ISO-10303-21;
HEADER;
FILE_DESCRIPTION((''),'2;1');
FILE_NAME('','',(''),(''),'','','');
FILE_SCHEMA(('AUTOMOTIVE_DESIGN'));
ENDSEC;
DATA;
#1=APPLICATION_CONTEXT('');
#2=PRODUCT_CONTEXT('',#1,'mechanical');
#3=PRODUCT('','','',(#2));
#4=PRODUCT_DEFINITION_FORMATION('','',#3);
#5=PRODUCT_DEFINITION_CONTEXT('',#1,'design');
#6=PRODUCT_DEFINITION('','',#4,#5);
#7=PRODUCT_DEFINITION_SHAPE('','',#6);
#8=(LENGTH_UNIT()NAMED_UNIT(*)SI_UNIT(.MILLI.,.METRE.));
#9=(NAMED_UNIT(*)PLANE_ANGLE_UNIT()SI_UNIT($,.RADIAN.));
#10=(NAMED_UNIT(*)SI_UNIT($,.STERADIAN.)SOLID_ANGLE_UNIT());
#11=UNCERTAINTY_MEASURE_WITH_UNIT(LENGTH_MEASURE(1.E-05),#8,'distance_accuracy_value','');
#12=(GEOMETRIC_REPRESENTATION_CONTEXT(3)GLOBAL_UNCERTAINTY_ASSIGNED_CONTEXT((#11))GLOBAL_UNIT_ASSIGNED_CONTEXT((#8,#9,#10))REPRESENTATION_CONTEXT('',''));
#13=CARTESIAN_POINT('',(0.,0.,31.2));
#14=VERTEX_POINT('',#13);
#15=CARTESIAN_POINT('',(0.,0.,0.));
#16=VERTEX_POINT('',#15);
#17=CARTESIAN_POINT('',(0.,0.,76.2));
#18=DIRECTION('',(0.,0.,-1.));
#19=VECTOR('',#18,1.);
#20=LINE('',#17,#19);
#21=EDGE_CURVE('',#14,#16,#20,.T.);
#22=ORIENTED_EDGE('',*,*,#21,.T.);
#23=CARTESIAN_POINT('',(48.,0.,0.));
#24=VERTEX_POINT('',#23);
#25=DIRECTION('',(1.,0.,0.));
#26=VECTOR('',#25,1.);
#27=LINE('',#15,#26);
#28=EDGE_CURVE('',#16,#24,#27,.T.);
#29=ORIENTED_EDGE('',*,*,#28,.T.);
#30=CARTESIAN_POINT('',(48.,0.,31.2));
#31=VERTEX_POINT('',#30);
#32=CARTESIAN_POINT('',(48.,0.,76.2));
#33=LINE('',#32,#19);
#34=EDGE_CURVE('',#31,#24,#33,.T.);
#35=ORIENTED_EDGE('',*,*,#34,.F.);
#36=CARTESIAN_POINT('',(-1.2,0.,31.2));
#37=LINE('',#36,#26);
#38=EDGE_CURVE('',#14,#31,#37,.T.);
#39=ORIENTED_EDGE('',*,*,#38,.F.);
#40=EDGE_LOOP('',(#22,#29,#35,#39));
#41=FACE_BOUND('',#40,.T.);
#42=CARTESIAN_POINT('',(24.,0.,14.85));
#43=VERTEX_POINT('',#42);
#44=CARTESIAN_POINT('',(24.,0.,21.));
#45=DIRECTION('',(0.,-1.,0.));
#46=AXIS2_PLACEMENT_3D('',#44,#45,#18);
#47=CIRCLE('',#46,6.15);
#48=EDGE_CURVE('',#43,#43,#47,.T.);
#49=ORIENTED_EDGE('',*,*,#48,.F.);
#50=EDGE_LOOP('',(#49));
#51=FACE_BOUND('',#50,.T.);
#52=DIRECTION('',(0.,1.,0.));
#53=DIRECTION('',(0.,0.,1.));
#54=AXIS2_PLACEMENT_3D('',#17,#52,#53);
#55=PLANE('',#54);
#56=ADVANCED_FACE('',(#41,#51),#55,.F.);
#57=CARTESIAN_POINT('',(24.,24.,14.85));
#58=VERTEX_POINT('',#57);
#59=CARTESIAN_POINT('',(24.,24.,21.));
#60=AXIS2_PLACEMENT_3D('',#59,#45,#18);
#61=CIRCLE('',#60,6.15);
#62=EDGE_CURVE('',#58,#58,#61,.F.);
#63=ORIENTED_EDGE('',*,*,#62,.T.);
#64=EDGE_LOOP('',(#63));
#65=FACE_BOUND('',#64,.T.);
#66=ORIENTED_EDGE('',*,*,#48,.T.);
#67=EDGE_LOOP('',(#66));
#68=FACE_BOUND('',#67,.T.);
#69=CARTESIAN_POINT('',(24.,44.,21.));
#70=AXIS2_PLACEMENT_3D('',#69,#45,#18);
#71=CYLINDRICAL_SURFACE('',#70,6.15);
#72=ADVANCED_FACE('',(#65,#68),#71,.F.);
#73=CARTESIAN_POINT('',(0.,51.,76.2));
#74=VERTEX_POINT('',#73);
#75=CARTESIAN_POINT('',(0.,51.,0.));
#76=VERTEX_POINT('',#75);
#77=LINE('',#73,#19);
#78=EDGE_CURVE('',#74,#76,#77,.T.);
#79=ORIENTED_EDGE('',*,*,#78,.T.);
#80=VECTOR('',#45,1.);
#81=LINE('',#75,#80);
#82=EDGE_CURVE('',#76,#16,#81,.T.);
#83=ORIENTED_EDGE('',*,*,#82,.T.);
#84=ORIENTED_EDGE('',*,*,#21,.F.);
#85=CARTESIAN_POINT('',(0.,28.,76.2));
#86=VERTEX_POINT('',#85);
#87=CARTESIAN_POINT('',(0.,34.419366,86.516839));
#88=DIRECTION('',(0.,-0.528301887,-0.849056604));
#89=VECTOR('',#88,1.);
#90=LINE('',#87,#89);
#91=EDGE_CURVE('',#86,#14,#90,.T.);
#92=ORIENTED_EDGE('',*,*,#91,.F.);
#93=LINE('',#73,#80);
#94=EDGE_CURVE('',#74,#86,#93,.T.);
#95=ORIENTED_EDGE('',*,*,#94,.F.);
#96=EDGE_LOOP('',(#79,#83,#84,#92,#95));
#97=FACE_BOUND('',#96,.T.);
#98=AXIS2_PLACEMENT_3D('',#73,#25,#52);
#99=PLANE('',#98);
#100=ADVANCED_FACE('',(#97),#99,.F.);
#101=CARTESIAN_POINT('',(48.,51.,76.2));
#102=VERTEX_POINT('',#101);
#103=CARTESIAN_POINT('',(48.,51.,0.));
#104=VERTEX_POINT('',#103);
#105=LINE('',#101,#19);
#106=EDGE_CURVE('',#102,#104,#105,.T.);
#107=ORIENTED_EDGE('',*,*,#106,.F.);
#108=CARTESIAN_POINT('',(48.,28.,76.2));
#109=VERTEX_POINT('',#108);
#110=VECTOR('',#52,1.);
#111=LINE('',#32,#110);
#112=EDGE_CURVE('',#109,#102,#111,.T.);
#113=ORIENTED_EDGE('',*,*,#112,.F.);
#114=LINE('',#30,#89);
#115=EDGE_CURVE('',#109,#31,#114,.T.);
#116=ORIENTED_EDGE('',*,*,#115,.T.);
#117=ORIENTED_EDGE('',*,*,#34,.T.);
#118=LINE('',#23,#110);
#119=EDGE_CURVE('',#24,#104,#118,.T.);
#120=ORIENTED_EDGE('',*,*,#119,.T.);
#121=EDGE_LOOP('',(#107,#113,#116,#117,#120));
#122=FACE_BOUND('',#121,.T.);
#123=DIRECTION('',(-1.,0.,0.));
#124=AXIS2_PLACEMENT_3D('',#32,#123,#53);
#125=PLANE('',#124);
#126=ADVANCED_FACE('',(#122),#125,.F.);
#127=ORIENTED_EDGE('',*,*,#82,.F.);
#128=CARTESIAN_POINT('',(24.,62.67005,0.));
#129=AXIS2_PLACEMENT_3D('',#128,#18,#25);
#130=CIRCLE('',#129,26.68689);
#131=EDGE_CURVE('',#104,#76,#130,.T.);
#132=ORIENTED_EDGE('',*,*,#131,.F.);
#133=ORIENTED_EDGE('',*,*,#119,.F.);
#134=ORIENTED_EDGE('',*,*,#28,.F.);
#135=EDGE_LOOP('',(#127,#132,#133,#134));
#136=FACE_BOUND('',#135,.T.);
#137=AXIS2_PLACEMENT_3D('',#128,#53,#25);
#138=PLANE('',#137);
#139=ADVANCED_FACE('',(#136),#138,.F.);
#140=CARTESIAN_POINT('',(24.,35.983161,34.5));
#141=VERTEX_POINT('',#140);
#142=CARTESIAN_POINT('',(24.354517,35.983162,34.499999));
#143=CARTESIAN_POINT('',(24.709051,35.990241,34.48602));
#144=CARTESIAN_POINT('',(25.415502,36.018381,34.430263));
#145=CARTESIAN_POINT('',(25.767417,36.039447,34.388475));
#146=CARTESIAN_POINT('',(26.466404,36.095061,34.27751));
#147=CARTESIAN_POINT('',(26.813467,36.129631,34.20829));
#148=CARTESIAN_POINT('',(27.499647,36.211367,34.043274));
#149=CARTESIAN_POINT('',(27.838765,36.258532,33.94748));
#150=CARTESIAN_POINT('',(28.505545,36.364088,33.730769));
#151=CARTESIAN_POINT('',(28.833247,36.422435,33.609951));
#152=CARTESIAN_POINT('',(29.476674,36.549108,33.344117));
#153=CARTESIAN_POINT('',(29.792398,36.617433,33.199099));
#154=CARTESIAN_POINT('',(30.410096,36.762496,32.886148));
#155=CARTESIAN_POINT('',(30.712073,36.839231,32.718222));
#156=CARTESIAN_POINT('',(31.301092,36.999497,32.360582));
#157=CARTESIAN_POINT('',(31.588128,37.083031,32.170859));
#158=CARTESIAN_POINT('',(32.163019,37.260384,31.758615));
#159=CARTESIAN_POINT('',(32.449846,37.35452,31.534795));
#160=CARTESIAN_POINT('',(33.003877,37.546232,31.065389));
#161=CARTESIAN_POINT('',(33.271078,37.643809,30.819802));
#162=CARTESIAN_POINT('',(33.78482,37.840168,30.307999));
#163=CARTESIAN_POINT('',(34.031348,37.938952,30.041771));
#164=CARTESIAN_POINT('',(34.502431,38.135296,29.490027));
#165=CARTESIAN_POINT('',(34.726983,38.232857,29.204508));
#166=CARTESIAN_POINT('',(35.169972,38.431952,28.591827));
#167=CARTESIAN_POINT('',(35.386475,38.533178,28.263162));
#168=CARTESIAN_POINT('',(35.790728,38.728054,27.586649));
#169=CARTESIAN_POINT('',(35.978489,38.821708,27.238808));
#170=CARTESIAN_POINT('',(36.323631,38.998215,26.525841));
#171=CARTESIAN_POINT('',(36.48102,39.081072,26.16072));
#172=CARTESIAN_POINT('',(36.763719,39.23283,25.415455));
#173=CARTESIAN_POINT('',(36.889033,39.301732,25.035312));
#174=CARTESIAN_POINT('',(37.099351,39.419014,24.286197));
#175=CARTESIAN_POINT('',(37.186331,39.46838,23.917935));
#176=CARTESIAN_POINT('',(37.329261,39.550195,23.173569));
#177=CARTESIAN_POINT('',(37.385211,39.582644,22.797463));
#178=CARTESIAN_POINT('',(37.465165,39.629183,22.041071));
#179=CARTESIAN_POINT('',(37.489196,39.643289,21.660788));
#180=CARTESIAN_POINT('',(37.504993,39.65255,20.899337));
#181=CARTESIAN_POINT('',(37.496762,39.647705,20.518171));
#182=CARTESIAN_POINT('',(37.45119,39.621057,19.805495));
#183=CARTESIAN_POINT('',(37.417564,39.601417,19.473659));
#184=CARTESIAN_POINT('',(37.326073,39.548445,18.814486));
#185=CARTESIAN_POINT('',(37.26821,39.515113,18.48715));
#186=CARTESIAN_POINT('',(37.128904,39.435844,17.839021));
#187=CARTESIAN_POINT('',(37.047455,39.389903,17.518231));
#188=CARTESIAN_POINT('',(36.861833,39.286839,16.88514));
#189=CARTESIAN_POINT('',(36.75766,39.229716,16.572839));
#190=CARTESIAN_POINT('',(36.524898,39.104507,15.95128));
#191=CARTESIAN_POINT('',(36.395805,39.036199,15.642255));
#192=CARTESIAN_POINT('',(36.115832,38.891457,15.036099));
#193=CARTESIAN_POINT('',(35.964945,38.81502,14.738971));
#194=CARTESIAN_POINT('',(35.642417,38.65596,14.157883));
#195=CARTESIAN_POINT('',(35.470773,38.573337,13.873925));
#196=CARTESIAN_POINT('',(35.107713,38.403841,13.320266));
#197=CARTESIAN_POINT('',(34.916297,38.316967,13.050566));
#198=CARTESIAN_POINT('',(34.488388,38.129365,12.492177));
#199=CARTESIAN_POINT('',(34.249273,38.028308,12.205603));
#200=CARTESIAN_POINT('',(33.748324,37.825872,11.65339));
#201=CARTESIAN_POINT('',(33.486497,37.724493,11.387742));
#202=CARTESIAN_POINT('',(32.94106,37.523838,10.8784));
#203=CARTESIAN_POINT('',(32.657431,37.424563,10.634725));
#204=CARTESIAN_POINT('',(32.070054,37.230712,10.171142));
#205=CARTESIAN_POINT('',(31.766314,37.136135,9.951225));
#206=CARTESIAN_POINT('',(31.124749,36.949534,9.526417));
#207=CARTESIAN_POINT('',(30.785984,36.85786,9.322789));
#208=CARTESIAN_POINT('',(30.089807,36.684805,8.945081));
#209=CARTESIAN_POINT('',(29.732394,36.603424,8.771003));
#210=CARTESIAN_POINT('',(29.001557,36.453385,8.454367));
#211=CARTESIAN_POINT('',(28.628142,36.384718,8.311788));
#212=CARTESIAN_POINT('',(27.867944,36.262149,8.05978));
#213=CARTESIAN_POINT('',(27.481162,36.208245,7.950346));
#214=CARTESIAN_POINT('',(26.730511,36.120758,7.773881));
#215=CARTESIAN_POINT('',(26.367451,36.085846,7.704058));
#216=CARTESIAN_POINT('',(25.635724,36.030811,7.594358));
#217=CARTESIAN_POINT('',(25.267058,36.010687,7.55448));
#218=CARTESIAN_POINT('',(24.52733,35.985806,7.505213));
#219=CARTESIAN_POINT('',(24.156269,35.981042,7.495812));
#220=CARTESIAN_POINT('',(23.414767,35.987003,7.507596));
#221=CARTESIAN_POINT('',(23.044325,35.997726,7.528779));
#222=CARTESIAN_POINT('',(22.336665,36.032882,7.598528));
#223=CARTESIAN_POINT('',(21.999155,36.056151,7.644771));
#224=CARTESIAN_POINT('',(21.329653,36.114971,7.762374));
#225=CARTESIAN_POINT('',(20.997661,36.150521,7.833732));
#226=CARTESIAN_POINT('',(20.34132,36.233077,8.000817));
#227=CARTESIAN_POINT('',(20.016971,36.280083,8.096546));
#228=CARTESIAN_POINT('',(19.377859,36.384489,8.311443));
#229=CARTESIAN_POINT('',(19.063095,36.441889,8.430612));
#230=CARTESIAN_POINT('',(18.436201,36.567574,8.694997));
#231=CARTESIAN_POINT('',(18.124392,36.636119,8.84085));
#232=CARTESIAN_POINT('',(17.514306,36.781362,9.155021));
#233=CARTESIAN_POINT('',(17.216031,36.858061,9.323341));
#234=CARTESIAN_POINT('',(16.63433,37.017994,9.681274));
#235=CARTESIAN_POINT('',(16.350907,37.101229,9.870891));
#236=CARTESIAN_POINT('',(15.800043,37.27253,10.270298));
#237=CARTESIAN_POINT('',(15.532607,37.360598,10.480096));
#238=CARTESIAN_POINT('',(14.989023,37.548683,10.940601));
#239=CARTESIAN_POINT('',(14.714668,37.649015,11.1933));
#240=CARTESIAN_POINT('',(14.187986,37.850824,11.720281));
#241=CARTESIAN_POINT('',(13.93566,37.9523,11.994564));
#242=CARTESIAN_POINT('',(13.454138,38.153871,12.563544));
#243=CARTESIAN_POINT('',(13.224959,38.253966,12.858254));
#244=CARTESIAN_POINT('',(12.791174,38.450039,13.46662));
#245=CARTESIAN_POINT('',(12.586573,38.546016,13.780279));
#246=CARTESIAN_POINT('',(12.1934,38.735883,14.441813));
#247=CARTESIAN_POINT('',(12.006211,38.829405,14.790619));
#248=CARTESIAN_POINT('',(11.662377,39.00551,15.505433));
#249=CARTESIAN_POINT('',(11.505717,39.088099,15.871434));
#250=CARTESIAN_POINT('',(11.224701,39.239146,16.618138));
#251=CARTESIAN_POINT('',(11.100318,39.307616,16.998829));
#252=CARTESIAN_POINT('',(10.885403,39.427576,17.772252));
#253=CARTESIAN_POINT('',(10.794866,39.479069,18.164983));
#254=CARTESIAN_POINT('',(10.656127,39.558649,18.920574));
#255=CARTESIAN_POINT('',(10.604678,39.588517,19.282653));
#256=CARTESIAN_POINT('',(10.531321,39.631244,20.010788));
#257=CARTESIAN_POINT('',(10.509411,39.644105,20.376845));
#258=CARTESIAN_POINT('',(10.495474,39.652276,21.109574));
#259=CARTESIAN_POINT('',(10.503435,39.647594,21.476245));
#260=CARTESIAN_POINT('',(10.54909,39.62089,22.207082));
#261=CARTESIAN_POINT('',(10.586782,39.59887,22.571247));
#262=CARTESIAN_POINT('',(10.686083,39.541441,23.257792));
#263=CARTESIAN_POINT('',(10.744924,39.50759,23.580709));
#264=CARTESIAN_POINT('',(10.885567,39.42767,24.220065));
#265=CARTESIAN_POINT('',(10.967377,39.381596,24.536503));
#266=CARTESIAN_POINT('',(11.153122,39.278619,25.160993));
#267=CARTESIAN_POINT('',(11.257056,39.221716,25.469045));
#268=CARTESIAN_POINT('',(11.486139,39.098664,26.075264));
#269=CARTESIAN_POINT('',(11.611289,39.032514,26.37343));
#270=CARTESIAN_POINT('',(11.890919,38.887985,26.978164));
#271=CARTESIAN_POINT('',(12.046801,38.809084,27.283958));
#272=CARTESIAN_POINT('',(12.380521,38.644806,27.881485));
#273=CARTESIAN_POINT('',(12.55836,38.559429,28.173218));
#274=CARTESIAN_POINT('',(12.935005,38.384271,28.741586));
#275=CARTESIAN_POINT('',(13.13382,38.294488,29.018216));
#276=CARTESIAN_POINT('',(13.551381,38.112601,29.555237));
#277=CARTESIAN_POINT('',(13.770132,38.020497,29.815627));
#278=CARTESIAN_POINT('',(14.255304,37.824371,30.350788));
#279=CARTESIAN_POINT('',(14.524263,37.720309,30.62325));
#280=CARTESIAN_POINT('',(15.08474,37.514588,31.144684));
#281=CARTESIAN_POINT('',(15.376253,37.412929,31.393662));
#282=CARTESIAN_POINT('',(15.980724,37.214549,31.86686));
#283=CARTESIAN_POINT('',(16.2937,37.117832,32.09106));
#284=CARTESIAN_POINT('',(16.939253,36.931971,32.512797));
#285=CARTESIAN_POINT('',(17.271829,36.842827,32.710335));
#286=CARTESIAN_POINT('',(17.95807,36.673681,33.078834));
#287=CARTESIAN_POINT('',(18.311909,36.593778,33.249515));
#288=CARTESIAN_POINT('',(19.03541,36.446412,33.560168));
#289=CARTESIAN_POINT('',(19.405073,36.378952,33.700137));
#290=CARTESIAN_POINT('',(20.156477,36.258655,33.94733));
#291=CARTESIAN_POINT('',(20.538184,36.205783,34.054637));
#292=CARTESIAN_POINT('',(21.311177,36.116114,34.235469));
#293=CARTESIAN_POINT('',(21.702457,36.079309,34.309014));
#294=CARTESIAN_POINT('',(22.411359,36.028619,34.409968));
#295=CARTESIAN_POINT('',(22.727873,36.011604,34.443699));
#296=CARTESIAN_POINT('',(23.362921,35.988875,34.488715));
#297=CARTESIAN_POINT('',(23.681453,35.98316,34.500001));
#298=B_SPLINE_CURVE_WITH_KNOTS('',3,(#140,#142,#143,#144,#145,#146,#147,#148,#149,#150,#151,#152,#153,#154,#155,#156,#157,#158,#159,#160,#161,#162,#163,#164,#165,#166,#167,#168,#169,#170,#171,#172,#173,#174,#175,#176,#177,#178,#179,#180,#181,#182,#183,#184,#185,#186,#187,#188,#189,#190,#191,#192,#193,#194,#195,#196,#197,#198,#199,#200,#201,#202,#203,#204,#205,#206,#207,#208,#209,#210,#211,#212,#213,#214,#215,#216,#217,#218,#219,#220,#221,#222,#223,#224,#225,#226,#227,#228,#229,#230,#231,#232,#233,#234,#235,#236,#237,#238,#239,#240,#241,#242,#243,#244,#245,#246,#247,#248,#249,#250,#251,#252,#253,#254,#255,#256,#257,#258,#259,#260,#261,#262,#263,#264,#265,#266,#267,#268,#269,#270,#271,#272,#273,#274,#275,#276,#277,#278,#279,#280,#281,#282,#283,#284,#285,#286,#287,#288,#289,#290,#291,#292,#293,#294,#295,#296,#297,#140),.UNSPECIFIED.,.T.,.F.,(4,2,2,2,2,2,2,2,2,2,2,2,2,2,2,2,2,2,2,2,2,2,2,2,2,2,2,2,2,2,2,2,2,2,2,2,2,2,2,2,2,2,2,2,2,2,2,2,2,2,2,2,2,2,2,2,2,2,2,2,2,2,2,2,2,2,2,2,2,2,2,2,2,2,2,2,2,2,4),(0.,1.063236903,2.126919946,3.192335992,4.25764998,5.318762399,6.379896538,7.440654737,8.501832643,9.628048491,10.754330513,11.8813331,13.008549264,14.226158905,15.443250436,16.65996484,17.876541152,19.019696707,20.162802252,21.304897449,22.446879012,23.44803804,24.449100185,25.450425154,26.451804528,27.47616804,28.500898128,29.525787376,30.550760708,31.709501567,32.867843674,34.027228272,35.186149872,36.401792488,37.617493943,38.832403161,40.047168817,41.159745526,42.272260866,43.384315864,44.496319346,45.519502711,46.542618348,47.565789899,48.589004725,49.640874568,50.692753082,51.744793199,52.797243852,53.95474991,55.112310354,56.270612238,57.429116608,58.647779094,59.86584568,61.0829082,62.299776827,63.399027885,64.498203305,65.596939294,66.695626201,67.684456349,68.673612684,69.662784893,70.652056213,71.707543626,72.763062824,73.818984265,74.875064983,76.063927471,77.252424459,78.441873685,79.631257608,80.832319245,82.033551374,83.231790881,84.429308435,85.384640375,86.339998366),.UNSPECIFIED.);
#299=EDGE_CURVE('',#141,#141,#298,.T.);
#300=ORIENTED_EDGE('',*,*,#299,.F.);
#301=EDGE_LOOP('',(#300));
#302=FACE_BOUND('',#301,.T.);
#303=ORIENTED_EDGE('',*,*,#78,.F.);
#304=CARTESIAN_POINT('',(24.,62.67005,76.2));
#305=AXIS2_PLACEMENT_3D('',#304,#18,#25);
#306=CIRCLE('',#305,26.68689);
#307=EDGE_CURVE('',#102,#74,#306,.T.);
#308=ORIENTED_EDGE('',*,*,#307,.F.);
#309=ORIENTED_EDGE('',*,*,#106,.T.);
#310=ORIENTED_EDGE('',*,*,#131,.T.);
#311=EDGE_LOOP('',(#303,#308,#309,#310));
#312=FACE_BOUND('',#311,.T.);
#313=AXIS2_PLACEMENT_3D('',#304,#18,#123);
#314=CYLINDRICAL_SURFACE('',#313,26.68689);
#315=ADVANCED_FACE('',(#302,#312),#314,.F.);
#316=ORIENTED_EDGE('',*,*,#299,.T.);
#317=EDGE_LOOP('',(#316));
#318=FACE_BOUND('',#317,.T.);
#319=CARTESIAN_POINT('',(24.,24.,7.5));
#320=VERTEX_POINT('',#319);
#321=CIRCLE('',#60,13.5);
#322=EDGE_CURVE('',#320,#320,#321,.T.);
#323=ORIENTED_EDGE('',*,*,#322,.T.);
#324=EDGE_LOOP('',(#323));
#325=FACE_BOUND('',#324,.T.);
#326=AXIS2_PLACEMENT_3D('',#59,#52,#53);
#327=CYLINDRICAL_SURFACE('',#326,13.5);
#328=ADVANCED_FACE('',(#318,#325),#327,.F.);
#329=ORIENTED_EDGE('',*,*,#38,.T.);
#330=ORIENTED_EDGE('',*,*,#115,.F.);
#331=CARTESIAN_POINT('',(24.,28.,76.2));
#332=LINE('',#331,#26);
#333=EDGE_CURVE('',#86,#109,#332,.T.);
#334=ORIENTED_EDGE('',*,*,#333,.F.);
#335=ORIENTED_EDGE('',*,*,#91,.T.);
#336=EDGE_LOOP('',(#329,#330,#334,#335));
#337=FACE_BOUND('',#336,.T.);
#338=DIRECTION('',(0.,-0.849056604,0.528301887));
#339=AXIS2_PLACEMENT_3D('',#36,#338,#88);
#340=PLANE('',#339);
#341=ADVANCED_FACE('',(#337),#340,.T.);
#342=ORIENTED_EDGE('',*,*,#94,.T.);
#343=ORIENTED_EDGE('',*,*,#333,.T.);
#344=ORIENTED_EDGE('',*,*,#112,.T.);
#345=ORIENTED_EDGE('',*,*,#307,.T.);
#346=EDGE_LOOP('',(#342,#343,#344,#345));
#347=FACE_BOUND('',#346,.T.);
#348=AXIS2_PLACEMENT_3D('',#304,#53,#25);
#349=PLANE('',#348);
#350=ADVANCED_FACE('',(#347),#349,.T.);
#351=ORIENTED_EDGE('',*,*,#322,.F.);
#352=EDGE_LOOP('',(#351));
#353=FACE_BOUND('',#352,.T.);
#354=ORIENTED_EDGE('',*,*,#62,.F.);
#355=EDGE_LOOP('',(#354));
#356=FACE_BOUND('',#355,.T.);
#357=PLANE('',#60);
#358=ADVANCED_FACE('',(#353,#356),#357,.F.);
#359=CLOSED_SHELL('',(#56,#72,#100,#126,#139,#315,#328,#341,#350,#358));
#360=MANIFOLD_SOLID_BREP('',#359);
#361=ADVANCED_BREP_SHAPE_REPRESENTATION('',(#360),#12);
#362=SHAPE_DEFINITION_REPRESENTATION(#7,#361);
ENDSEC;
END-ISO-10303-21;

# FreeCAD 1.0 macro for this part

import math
import FreeCAD as App
import Part
import Sketcher
from FreeCAD import Vector
Q = App.Units.Quantity


def add_polygon(sketch, points):
    """Adds a closed chain of lines whose ends are joined by coincident constraints."""
    first, n = sketch.GeometryCount, len(points)
    for a, b in zip(points, points[1:] + points[:1]):
        sketch.addGeometry(Part.LineSegment(App.Vector(*a, 0), App.Vector(*b, 0)), False)
    for i in range(n):
        sketch.addConstraint(Sketcher.Constraint("Coincident", first + i, 2, first + (i + 1) % n, 1))

doc = App.newDocument("Part")
params = doc.addObject("Spreadsheet::Sheet", "Params")
for row, (alias, value) in enumerate([
    ("sketch1_width", "48 mm"),
    ("sketch1_height", "51 mm"),
    ("pad1_length", "76.2 mm"),
    ("sketch2_width", "28 mm"),
    ("sketch2_height", "45 mm"),
    ("pocket1_length", "49.2 mm"),
    ("sketch3_diameter", "12.3 mm"),
    ("pocket2_length", "44 mm"),
    ("sketch4_diameter", "27 mm"),
    ("pocket3_length", "27 mm"),
], start=1):
    params.set(f"A{row}", alias)
    params.set(f"B{row}", "=" + value)
    params.setAlias(f"B{row}", alias)

body = doc.addObject("PartDesign::Body", "Body")

sketch1 = body.newObject("Sketcher::SketchObject", "Sketch")
sketch1.AttachmentSupport = (doc.getObject("XY_Plane"), [""])
sketch1.MapMode = "FlatFace"
sketch1.addGeometry([
    Part.LineSegment(Vector(0, 51, 0), Vector(0, 0, 0)),
    Part.LineSegment(Vector(0, 0, 0), Vector(48, 0, 0)),
    Part.LineSegment(Vector(48, 0, 0), Vector(48, 51, 0)),
    Part.ArcOfCircle(Part.Circle(Vector(24, 63, 0), Vector(0, 0, 1), 27), math.radians(-154), math.radians(-26)),
], False)
sketch1.addConstraint([
    Sketcher.Constraint("Coincident", 0, 2, 1, 1),
    Sketcher.Constraint("Coincident", 1, 2, 2, 1),
    Sketcher.Constraint("Coincident", 2, 2, 3, 2),
    Sketcher.Constraint("Coincident", 3, 1, 0, 1),
    Sketcher.Constraint("Vertical", 0),
    Sketcher.Constraint("Horizontal", 1),
    Sketcher.Constraint("Vertical", 2),
    Sketcher.Constraint("Coincident", 0, 2, -1, 1),
    Sketcher.Constraint("Horizontal", 2, 2, 3, 1),
    Sketcher.Constraint("DistanceX", 1, 1, 1, 2, Q("48 mm")),
    Sketcher.Constraint("DistanceY", 0, 2, 0, 1, Q("51 mm")),
    Sketcher.Constraint("Radius", 3, Q("26.68689 mm")),
])
sketch1.setExpression("Constraints[9]", "Params.sketch1_width")
sketch1.setExpression("Constraints[10]", "Params.sketch1_height")
pad1 = body.newObject("PartDesign::Pad", "Pad")
pad1.Profile = sketch1
pad1.setExpression("Length", "Params.pad1_length")

sketch2 = body.newObject("Sketcher::SketchObject", "Sketch001")
sketch2.AttachmentSupport = (doc.getObject("YZ_Plane"), [""])
sketch2.MapMode = "FlatFace"
sketch2.AttachmentOffset = App.Placement(Vector(0, 0, 48), App.Rotation())
add_polygon(sketch2, [(0, 76), (28, 76), (0, 31)])
sketch2.addConstraint([
    Sketcher.Constraint("Horizontal", 0),
    Sketcher.Constraint("Vertical", 2),
    Sketcher.Constraint("PointOnObject", 1, 2, -2),
    Sketcher.Constraint("DistanceX", 0, 1, 0, 2, Q("28 mm")),
    Sketcher.Constraint("DistanceY", 2, 1, 2, 2, Q("45 mm")),
    Sketcher.Constraint("DistanceY", -1, 1, 0, 2, Q("76.2 mm")),
])
sketch2.setExpression("Constraints[6]", "Params.sketch2_width")
sketch2.setExpression("Constraints[7]", "Params.sketch2_height")
pocket1 = body.newObject("PartDesign::Pocket", "Pocket")
pocket1.Profile = sketch2
pocket1.setExpression("Length", "Params.pocket1_length")

sketch3 = body.newObject("Sketcher::SketchObject", "Sketch002")
sketch3.AttachmentSupport = (doc.getObject("XZ_Plane"), [""])
sketch3.MapMode = "FlatFace"
sketch3.addGeometry(Part.Circle(Vector(24, 21, 0), Vector(0, 0, 1), 6), False)
sketch3.addConstraint([
    Sketcher.Constraint("Diameter", 0, Q("12.3 mm")),
    Sketcher.Constraint("DistanceX", -1, 1, 0, 3, Q("24 mm")),
    Sketcher.Constraint("DistanceY", -1, 1, 0, 3, Q("21 mm")),
])
sketch3.setExpression("Constraints[0]", "Params.sketch3_diameter")
pocket2 = body.newObject("PartDesign::Pocket", "Pocket001")
pocket2.Profile = sketch3
pocket2.setExpression("Length", "Params.pocket2_length")

sketch4 = body.newObject("Sketcher::SketchObject", "Sketch003")
sketch4.AttachmentSupport = (doc.getObject("XZ_Plane"), [""])
sketch4.MapMode = "FlatFace"
sketch4.AttachmentOffset = App.Placement(Vector(0, 0, -51), App.Rotation())
sketch4.addGeometry(Part.Circle(Vector(24, 21, 0), Vector(0, 0, 1), 14), False)
sketch4.addConstraint([
    Sketcher.Constraint("Diameter", 0, Q("27 mm")),
    Sketcher.Constraint("DistanceX", -1, 1, 0, 3, Q("24 mm")),
    Sketcher.Constraint("DistanceY", -1, 1, 0, 3, Q("21 mm")),
])
sketch4.setExpression("Constraints[0]", "Params.sketch4_diameter")
pocket3 = body.newObject("PartDesign::Pocket", "Pocket002")
pocket3.Profile = sketch4
pocket3.setExpression("Length", "Params.pocket3_length")
pocket3.Reversed = True

doc.recompute()
